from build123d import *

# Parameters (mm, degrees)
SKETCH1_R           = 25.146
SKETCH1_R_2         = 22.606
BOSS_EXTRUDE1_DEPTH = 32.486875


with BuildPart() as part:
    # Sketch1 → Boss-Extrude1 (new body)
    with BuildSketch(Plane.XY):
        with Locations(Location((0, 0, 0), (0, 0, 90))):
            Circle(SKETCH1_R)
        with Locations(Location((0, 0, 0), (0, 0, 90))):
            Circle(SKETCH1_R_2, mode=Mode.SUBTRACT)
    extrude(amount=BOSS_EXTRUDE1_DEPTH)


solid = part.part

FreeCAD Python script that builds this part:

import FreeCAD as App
import Part
import Sketcher

V = App.Vector
Q = App.Units.Quantity

doc = App.newDocument("Part")
body = doc.addObject("PartDesign::Body", "Body")

# Sketch on XY plane
sketch1 = body.newObject("Sketcher::SketchObject", "Sketch")
sketch1.AttachmentSupport = (doc.getObject("XY_Plane"), [""])
sketch1.MapMode = "FlatFace"
sketch1.addGeometry([
    Part.Circle(V(0, 0, 0), V(0, 0, 1), 25),
    Part.Circle(V(0, 0, 0), V(0, 0, 1), 23),
], False)
sketch1.addConstraint([
    Sketcher.Constraint("Coincident", 0, 3, -1, 1),
    Sketcher.Constraint("Coincident", 1, 3, -1, 1),
    Sketcher.Constraint("Diameter", 0, Q("1.98 in")),
    Sketcher.Constraint("Diameter", 1, Q("1.78 in")),
])
pad1 = body.newObject("PartDesign::Pad", "Pad")
pad1.Profile = sketch1
pad1.Length = 32.486875

doc.recompute()
